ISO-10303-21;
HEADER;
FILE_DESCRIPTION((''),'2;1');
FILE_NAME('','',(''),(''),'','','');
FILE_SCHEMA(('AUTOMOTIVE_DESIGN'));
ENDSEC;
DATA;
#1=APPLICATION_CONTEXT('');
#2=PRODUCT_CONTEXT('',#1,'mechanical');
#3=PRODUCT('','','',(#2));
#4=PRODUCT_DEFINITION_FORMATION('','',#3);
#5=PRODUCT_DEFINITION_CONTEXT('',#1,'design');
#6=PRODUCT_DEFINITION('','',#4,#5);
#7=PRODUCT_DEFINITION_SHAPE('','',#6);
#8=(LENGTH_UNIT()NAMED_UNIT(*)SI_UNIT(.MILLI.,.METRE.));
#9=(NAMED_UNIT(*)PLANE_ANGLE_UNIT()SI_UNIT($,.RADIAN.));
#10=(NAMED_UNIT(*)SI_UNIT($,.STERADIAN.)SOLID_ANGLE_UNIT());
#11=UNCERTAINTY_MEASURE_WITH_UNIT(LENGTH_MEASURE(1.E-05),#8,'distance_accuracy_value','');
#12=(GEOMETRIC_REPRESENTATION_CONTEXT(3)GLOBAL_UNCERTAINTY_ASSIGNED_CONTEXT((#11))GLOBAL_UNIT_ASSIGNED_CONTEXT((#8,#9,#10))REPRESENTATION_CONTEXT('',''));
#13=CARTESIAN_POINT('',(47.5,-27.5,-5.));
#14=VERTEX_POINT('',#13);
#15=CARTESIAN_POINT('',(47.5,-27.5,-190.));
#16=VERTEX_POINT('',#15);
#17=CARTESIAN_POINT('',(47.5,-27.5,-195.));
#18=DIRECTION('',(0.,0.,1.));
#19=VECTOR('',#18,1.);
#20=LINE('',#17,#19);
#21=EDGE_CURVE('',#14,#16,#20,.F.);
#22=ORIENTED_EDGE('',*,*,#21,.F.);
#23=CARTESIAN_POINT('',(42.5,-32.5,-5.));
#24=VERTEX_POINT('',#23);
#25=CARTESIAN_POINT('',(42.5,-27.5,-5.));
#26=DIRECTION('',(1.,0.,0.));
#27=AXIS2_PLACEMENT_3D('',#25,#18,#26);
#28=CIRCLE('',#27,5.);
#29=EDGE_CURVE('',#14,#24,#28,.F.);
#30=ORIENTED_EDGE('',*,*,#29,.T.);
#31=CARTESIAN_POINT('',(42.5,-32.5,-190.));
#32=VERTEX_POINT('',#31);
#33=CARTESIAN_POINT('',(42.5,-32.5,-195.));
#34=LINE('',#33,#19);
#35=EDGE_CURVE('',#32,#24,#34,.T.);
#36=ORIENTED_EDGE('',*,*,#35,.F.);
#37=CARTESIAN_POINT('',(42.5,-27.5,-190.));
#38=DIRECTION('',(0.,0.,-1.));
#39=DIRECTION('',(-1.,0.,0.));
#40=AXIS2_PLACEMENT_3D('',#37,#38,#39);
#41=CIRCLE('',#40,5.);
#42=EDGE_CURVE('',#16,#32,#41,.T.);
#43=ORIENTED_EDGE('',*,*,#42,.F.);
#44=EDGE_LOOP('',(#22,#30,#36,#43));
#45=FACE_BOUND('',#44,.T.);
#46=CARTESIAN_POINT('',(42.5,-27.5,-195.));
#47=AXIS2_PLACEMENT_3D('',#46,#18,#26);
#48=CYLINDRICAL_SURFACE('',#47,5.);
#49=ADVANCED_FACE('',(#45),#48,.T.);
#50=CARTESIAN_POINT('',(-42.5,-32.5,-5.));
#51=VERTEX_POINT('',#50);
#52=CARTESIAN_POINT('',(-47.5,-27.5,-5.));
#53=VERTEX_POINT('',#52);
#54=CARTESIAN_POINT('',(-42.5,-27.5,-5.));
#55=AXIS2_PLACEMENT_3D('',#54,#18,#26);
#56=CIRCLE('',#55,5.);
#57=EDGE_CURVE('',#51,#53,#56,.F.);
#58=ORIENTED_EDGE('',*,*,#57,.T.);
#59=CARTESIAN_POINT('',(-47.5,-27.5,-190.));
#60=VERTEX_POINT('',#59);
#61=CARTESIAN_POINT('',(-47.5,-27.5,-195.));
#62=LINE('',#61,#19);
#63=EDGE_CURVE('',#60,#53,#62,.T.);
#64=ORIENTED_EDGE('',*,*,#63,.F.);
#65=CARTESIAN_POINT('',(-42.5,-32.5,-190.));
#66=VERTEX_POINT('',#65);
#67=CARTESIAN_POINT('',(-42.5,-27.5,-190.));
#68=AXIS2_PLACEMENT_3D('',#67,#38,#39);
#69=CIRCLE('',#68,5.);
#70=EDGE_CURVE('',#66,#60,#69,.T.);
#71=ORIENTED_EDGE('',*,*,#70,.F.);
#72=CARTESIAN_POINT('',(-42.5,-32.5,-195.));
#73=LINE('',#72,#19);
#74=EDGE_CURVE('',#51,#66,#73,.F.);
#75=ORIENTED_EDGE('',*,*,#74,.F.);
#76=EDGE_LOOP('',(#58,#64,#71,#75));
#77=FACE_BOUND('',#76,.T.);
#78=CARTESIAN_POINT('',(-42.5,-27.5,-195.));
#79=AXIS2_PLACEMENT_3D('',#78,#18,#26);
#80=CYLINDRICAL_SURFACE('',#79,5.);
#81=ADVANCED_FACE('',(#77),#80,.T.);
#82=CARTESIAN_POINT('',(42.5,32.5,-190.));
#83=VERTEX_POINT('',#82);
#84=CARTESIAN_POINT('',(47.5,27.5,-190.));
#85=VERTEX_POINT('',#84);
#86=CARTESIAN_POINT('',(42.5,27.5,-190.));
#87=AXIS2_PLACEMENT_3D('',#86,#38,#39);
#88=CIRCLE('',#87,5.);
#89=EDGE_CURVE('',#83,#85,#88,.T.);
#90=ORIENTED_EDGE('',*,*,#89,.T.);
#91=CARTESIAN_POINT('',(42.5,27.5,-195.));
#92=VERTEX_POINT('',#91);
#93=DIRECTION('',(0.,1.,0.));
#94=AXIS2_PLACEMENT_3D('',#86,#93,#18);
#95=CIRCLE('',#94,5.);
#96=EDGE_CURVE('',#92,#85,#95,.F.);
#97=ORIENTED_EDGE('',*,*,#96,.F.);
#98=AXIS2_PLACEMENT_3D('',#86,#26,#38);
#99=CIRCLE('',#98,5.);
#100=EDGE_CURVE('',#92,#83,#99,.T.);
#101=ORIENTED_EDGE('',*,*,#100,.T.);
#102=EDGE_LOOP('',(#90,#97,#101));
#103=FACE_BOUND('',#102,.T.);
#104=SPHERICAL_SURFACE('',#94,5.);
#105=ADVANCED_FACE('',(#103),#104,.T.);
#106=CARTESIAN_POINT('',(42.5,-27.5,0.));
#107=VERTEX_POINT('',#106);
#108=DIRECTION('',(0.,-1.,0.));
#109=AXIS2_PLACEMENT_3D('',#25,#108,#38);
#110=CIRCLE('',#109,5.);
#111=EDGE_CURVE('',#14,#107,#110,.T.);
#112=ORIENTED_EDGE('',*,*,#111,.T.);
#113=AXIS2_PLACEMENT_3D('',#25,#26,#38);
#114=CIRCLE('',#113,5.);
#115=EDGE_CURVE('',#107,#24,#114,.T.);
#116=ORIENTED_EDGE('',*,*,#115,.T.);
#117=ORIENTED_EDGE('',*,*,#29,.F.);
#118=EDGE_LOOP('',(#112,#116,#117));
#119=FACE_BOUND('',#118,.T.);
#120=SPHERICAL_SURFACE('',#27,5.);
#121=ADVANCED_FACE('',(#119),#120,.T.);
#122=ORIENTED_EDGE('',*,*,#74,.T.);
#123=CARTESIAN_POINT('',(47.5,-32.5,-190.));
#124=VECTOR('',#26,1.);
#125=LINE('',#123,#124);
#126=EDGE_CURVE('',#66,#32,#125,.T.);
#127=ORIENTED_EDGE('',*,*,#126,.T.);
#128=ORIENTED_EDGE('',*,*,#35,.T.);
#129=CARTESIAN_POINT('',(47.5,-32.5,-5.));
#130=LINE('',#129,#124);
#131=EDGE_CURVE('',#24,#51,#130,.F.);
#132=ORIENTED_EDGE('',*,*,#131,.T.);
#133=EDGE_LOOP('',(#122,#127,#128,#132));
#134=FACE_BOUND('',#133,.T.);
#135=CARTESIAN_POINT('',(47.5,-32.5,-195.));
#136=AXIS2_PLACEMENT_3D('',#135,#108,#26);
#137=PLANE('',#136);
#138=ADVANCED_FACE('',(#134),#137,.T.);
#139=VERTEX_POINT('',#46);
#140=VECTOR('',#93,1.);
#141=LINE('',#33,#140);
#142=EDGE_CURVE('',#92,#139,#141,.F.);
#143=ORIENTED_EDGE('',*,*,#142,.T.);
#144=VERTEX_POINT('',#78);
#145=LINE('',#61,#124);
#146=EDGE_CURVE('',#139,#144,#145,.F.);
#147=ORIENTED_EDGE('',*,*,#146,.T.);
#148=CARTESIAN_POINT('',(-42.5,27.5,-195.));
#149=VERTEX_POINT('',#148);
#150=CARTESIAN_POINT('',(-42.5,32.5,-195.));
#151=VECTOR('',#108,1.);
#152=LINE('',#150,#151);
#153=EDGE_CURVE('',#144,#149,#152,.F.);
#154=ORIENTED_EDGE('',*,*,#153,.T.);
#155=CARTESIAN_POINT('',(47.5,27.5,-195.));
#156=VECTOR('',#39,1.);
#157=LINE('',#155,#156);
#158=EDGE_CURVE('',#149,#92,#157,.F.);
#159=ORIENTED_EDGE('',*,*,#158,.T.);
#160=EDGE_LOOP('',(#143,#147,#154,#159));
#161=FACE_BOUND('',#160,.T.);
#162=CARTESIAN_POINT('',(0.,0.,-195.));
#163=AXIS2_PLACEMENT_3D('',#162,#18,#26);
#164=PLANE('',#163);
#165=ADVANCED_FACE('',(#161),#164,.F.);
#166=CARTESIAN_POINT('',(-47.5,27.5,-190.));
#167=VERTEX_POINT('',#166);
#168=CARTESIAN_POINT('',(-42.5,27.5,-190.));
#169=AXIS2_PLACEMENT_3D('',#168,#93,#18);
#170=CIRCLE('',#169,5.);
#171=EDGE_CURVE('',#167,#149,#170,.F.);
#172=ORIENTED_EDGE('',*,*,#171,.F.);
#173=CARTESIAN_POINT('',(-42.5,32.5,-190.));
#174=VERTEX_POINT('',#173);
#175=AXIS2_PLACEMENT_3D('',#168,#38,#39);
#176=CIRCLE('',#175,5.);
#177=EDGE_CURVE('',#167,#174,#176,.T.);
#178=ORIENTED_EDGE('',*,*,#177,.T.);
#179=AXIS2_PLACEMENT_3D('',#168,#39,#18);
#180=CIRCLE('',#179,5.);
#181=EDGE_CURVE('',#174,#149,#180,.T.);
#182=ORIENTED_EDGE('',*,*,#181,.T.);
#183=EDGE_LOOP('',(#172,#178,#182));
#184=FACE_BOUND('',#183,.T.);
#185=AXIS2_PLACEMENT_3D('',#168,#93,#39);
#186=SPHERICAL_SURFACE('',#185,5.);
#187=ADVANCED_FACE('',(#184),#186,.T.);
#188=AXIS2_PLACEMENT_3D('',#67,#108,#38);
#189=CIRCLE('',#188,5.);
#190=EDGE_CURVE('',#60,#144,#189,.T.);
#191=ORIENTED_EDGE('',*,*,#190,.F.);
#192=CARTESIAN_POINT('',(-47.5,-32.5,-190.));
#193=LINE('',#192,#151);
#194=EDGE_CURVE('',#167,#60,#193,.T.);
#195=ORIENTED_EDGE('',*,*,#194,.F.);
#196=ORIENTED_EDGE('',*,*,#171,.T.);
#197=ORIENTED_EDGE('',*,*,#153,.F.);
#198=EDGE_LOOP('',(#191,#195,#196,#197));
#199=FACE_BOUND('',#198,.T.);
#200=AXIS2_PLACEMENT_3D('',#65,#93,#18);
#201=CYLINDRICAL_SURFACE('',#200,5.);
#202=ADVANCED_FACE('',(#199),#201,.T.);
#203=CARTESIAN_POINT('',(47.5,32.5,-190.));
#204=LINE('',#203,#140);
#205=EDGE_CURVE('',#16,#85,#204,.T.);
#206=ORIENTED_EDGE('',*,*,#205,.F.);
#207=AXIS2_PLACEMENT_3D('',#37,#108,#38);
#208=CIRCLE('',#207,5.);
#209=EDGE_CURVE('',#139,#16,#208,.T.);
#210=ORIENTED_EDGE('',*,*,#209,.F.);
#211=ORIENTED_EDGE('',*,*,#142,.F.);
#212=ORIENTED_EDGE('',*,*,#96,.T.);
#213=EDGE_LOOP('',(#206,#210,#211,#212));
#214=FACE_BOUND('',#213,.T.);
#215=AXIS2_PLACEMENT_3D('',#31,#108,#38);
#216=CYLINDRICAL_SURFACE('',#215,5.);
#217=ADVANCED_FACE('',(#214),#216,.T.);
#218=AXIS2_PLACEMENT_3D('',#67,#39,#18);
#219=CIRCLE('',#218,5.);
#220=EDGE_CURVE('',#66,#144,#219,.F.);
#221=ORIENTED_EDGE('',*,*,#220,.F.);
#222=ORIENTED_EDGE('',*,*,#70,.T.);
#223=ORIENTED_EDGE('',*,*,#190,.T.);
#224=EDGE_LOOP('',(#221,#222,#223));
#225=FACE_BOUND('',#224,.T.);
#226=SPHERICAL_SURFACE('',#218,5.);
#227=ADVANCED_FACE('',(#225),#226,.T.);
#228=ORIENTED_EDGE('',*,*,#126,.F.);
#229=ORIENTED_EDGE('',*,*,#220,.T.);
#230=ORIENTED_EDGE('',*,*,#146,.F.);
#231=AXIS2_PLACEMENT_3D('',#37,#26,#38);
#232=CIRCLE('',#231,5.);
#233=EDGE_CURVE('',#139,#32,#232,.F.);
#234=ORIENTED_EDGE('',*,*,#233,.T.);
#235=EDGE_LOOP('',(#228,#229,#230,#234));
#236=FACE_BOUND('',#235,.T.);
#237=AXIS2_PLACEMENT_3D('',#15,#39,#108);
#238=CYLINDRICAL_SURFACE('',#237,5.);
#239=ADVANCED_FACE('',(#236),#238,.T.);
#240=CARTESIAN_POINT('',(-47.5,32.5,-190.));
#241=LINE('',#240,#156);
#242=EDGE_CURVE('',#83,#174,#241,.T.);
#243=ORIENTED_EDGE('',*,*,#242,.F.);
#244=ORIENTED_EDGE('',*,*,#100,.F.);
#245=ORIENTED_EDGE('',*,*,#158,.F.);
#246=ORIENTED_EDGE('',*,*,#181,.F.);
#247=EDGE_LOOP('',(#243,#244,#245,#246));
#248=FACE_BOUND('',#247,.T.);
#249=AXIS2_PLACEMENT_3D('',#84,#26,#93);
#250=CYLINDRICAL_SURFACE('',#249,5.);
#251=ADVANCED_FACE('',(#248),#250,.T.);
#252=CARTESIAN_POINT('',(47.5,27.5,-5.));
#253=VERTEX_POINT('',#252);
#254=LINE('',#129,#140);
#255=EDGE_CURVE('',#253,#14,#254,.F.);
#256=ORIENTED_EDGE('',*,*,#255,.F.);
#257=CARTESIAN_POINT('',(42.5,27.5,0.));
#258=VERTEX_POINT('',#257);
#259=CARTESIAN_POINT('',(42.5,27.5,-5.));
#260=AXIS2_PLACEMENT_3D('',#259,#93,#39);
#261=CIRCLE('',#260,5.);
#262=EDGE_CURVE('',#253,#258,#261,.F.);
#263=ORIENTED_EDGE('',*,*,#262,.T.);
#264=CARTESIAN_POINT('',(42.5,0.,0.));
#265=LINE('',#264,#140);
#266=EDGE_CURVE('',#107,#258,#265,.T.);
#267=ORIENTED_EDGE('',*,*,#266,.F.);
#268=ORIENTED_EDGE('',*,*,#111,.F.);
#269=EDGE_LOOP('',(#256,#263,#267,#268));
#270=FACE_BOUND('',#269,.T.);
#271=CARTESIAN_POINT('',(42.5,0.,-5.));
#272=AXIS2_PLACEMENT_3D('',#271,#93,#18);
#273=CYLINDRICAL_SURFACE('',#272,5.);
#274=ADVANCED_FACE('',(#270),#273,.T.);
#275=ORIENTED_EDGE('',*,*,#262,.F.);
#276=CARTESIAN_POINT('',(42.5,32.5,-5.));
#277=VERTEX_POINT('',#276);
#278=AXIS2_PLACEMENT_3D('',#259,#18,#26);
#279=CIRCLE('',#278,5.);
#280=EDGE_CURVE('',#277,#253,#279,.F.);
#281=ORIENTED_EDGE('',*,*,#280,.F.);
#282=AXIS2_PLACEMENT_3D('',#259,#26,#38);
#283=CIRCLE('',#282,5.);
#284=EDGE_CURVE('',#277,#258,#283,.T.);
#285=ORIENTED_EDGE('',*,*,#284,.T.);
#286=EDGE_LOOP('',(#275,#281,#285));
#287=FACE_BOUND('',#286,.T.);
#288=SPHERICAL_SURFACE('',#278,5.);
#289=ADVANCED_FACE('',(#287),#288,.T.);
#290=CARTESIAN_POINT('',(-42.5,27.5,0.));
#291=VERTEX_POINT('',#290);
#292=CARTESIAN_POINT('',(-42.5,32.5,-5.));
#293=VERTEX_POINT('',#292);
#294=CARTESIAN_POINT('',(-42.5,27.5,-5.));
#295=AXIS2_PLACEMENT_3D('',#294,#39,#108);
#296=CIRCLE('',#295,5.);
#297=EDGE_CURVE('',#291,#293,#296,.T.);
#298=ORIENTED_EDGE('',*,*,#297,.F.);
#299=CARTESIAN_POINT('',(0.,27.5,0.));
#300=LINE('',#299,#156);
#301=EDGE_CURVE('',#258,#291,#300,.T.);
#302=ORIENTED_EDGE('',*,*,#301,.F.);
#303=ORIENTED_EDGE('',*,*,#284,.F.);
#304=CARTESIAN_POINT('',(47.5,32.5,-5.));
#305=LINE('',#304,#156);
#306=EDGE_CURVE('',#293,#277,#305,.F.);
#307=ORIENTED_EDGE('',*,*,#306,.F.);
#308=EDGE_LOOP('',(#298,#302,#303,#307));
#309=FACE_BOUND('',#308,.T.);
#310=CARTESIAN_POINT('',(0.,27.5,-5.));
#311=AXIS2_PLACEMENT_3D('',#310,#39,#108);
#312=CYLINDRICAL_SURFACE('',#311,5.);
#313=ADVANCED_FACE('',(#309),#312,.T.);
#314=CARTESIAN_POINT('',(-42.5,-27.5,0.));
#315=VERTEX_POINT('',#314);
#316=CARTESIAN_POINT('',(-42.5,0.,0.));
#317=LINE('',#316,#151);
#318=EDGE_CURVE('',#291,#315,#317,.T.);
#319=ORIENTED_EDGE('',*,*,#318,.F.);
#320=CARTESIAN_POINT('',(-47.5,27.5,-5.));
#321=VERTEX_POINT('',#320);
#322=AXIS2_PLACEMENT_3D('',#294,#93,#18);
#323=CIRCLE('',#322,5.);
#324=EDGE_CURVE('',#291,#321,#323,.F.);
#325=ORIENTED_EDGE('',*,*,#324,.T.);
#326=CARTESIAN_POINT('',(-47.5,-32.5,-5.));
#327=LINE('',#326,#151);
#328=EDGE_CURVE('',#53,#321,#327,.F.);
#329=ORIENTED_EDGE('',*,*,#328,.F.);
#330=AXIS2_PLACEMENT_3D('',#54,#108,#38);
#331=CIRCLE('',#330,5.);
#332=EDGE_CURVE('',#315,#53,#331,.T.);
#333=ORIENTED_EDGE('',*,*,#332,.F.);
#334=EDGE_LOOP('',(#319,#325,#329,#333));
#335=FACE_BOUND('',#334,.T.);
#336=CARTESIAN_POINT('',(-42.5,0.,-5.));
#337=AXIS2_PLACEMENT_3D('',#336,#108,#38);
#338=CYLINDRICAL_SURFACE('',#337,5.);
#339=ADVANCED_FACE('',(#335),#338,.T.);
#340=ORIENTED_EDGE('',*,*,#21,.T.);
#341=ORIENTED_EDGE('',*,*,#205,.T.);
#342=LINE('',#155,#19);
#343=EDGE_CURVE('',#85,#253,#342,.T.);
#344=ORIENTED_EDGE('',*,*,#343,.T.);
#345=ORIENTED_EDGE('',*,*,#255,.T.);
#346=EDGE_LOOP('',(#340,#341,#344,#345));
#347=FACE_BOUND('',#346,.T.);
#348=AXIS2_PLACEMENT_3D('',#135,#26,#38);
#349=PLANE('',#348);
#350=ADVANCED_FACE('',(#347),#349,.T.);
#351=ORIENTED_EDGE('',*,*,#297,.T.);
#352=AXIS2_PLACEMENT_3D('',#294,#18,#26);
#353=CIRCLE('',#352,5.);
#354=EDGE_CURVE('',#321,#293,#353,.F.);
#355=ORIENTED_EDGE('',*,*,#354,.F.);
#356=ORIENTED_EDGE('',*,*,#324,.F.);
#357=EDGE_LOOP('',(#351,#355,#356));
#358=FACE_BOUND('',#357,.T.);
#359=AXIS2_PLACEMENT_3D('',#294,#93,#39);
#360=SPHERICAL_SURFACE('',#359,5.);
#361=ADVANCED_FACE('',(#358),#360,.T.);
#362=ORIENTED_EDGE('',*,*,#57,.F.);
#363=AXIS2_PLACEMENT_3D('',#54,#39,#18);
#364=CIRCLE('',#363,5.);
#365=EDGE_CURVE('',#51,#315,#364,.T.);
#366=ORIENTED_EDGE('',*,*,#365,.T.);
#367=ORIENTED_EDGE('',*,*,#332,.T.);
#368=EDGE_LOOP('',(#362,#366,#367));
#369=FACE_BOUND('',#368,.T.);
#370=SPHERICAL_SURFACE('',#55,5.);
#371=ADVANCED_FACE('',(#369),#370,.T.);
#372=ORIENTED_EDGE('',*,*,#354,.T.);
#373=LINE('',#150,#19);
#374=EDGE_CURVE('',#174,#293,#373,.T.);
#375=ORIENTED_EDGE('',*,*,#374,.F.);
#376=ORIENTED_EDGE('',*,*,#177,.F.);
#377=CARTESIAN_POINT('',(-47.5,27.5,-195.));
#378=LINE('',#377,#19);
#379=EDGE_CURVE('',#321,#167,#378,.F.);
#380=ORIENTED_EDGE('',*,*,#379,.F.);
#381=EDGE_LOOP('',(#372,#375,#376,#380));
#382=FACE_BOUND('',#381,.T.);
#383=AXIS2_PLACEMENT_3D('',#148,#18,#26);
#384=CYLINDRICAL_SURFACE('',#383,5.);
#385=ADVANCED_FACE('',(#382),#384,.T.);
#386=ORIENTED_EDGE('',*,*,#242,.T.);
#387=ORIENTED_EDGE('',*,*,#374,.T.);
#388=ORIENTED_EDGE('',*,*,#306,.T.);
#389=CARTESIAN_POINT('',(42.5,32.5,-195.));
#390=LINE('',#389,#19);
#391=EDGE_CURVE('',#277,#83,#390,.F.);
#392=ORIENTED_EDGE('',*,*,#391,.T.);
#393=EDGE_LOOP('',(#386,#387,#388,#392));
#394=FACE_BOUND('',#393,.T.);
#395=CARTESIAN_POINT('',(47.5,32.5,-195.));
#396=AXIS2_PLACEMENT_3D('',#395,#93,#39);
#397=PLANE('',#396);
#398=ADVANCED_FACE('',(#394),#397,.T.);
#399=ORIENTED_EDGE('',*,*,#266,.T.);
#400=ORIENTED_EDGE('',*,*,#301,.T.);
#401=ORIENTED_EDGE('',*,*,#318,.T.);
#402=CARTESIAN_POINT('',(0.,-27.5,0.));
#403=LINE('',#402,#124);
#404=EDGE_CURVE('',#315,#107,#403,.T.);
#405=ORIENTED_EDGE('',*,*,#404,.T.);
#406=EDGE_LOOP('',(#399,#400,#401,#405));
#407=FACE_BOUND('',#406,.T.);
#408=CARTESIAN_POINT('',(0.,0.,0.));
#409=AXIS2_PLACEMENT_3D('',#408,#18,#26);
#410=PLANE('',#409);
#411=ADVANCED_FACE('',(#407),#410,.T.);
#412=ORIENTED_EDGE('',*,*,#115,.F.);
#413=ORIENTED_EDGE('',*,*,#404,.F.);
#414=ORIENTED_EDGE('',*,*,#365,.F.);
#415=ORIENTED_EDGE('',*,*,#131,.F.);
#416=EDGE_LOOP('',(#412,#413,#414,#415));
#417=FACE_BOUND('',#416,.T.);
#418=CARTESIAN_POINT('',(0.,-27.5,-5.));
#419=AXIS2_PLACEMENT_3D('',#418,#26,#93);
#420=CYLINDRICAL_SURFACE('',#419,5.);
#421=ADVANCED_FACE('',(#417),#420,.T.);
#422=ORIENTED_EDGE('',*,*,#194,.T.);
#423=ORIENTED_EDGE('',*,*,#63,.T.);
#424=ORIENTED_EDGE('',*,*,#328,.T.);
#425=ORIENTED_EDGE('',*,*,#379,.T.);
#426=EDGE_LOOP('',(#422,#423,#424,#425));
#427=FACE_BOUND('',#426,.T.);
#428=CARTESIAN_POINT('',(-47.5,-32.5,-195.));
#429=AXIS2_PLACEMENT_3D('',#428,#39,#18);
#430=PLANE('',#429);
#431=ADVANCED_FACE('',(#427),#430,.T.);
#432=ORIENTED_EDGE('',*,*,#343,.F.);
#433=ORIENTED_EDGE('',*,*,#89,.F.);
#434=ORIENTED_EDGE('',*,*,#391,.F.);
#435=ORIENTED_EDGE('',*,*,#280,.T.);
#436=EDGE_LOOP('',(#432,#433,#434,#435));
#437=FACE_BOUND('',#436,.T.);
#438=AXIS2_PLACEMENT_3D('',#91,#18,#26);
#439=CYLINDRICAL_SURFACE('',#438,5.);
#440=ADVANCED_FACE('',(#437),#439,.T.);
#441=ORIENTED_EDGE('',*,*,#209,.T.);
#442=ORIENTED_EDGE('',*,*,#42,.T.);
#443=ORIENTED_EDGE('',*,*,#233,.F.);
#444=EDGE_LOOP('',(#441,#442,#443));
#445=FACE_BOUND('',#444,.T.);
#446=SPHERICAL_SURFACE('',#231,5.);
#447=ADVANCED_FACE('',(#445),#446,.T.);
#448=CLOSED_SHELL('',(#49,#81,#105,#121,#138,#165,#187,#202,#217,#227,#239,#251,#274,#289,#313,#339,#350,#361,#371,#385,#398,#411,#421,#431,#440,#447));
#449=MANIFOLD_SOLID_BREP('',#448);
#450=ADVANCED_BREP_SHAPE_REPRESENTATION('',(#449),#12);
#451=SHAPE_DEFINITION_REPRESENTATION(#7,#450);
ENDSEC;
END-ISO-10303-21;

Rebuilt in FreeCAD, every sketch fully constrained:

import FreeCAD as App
import Part
import Sketcher

V = App.Vector

doc = App.newDocument("Part")
body = doc.addObject("PartDesign::Body", "Body")

sketch1 = body.newObject("Sketcher::SketchObject", "Sketch")
sketch1.AttachmentSupport = (doc.getObject("XY_Plane"), [""])
sketch1.MapMode = "FlatFace"
sketch1.addGeometry([
    Part.LineSegment(V(-48, 32, 0), V(-48, -32, 0)),
    Part.LineSegment(V(-48, -32, 0), V(48, -32, 0)),
    Part.LineSegment(V(48, -32, 0), V(48, 32, 0)),
    Part.LineSegment(V(48, 32, 0), V(-48, 32, 0)),
], False)
sketch1.addConstraint([
    Sketcher.Constraint("Coincident", 0, 2, 1, 1),
    Sketcher.Constraint("Coincident", 1, 2, 2, 1),
    Sketcher.Constraint("Coincident", 2, 2, 3, 1),
    Sketcher.Constraint("Coincident", 3, 2, 0, 1),
    Sketcher.Constraint("Vertical", 0),
    Sketcher.Constraint("Horizontal", 1),
    Sketcher.Constraint("Vertical", 2),
    Sketcher.Constraint("Horizontal", 3),
    Sketcher.Constraint("Symmetric", 0, 2, 2, 2, -1, 1),
    Sketcher.Constraint("DistanceX", 1, 1, 1, 2, 95.0),
    Sketcher.Constraint("DistanceY", 0, 2, 0, 1, 65.0),
])
pad1 = body.newObject("PartDesign::Pad", "Pad")
pad1.Profile = sketch1
pad1.Length = 195
pad1.Reversed = True
doc.recompute()

fillet = body.newObject("PartDesign::Fillet", "Fillet")
fillet.Base = (pad1, ["Edge1"])
fillet.UseAllEdges = True
fillet.Radius = 5

doc.recompute()
